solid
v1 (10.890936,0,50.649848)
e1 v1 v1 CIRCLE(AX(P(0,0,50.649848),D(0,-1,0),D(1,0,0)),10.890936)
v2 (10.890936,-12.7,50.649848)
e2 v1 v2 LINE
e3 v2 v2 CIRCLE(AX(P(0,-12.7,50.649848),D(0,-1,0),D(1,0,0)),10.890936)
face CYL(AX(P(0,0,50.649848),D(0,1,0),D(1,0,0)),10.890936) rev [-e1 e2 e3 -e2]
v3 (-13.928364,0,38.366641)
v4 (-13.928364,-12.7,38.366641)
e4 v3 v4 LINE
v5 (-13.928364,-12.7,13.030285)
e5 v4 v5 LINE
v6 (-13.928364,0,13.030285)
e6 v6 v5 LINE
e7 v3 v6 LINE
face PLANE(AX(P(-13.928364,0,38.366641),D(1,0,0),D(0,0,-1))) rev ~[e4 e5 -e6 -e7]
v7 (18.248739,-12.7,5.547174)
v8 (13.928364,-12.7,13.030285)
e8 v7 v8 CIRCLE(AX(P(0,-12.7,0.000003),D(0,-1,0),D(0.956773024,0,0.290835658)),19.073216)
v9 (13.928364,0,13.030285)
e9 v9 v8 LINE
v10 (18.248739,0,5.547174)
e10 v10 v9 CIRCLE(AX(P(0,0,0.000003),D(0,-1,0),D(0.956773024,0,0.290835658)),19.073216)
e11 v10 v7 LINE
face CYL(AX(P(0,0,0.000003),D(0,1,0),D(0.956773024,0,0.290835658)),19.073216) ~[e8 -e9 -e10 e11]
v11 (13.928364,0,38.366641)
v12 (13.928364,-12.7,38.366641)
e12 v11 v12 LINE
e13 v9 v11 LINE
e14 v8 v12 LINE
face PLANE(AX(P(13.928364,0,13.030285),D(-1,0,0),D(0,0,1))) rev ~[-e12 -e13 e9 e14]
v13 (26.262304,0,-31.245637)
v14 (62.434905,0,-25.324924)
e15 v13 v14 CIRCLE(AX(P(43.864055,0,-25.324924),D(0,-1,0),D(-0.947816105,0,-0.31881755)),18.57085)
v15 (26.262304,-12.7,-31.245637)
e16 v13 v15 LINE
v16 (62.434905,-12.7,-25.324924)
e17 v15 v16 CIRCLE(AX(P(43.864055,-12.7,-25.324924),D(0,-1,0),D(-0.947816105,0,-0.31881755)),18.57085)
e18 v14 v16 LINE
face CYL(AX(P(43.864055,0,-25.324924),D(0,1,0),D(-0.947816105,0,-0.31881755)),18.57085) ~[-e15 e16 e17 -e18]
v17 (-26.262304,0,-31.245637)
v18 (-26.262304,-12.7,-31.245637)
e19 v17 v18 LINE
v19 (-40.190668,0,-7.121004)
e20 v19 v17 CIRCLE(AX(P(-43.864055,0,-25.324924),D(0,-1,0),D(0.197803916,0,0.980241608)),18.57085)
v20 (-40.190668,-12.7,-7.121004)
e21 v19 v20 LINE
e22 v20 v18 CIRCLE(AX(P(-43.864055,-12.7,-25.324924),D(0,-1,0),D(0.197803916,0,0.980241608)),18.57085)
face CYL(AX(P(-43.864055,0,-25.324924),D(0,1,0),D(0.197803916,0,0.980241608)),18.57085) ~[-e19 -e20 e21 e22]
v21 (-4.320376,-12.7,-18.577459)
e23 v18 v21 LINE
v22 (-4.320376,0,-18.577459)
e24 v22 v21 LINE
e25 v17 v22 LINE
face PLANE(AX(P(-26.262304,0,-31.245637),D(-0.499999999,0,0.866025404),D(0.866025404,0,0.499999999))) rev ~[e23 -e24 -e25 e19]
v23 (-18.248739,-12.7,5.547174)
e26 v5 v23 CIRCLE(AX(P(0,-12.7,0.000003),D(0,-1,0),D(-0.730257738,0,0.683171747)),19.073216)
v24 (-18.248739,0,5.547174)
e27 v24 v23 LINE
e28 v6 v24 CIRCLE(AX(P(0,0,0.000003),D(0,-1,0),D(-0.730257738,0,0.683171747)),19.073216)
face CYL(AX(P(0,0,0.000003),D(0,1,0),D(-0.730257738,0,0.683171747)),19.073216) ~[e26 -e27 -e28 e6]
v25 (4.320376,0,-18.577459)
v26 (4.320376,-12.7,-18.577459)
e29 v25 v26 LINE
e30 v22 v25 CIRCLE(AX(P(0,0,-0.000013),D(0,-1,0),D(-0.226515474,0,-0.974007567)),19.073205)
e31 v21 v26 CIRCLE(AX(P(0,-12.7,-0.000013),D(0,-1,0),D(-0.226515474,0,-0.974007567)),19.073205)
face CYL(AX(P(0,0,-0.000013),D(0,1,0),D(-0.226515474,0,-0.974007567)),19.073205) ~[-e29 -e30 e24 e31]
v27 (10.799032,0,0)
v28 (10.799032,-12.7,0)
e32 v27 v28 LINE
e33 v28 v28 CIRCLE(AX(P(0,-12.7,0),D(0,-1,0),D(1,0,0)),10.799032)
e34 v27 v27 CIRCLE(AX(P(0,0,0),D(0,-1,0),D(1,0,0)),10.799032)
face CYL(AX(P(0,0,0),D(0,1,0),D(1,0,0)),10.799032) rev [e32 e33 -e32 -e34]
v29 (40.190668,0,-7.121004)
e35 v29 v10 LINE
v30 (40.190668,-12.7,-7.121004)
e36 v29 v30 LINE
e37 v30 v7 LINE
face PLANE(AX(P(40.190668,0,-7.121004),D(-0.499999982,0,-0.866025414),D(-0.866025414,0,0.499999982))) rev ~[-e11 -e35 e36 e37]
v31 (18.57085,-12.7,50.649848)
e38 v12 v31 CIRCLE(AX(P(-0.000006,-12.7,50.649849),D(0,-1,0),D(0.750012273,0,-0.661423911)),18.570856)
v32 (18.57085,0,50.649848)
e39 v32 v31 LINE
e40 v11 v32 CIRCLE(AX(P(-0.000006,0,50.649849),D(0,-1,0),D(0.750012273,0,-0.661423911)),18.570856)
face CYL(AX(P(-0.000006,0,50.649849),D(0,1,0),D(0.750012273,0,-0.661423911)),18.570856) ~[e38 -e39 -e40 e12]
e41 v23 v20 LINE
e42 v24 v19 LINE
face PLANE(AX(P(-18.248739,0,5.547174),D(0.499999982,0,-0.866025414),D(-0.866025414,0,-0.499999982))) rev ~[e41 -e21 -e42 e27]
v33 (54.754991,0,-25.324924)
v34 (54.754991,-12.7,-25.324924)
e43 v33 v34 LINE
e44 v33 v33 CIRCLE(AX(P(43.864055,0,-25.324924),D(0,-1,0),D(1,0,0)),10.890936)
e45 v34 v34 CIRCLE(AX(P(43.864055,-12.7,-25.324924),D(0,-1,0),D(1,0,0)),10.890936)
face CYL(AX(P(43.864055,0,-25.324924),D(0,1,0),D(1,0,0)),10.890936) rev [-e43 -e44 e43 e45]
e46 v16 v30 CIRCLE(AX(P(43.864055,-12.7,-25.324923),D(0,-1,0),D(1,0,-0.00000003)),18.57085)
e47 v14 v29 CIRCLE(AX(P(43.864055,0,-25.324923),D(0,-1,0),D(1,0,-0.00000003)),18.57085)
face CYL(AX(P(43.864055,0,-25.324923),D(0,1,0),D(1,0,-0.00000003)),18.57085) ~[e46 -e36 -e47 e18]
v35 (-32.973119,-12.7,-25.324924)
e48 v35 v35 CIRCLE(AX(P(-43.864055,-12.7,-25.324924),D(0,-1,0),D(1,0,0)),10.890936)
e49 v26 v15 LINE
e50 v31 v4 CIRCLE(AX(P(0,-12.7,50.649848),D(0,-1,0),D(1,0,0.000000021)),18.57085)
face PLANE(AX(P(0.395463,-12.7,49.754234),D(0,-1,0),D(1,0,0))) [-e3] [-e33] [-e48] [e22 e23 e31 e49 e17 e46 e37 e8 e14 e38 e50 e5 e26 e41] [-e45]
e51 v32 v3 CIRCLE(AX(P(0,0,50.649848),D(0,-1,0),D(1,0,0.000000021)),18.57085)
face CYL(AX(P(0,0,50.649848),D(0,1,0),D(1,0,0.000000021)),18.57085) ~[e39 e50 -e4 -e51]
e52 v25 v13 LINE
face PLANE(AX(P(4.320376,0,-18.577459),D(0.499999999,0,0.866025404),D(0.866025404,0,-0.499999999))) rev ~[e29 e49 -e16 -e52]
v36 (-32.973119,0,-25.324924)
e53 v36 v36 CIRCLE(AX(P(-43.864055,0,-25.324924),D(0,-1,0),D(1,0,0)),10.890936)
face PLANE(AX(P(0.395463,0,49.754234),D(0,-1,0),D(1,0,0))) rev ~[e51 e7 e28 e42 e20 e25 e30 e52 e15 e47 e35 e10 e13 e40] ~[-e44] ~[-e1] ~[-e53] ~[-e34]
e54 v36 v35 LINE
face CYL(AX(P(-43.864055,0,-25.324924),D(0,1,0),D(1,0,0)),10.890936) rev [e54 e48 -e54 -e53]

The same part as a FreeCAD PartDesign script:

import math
import FreeCAD as App
import Part
import Sketcher
Q = App.Units.Quantity

doc = App.newDocument("Part")
body = doc.addObject("PartDesign::Body", "Body")

sketch1 = body.newObject("Sketcher::SketchObject", "Sketch")
sketch1.AttachmentSupport = (doc.getObject("XZ_Plane"), [""])
sketch1.MapMode = "FlatFace"
sketch1.addGeometry([
    Part.ArcOfCircle(Part.Circle(App.Vector(0, 51, 0), App.Vector(0, 0, 1), 19), math.radians(-41), math.radians(0)),
    Part.ArcOfCircle(Part.Circle(App.Vector(0, 51, 0), App.Vector(0, 0, 1), 19), math.radians(0), math.radians(221)),
    Part.LineSegment(App.Vector(-14, 38, 0), App.Vector(-14, 13, 0)),
    Part.ArcOfCircle(Part.Circle(App.Vector(0, 0, 0), App.Vector(0, 0, 1), 19), math.radians(137), math.radians(163)),
    Part.LineSegment(App.Vector(-18, 6, 0), App.Vector(-40, -7, 0)),
    Part.ArcOfCircle(Part.Circle(App.Vector(-44, -25, 0), App.Vector(0, 0, 1), 19), math.radians(79), math.radians(341)),
    Part.LineSegment(App.Vector(-26, -31, 0), App.Vector(-4, -19, 0)),
    Part.ArcOfCircle(Part.Circle(App.Vector(0, 0, 0), App.Vector(0, 0, 1), 19), math.radians(-103), math.radians(-77)),
    Part.LineSegment(App.Vector(4, -19, 0), App.Vector(26, -31, 0)),
    Part.ArcOfCircle(Part.Circle(App.Vector(44, -25, 0), App.Vector(0, 0, 1), 19), math.radians(-161), math.radians(0)),
    Part.ArcOfCircle(Part.Circle(App.Vector(44, -25, 0), App.Vector(0, 0, 1), 19), math.radians(0), math.radians(101)),
    Part.LineSegment(App.Vector(40, -7, 0), App.Vector(18, 6, 0)),
    Part.ArcOfCircle(Part.Circle(App.Vector(0, 0, 0), App.Vector(0, 0, 1), 19), math.radians(17), math.radians(43)),
    Part.LineSegment(App.Vector(14, 13, 0), App.Vector(14, 38, 0)),
    Part.Circle(App.Vector(-44, -25, 0), App.Vector(0, 0, 1), 11),
    Part.Circle(App.Vector(44, -25, 0), App.Vector(0, 0, 1), 11),
    Part.Circle(App.Vector(0, 0, 0), App.Vector(0, 0, 1), 11),
    Part.Circle(App.Vector(0, 51, 0), App.Vector(0, 0, 1), 11),
], False)
sketch1.addConstraint([
    Sketcher.Constraint("Tangent", 0, 2, 1, 1),
    Sketcher.Constraint("Coincident", 1, 2, 2, 1),
    Sketcher.Constraint("Coincident", 2, 2, 3, 1),
    Sketcher.Constraint("Coincident", 3, 2, 4, 1),
    Sketcher.Constraint("Coincident", 4, 2, 5, 1),
    Sketcher.Constraint("Coincident", 5, 2, 6, 1),
    Sketcher.Constraint("Coincident", 6, 2, 7, 1),
    Sketcher.Constraint("Coincident", 7, 2, 8, 1),
    Sketcher.Constraint("Coincident", 8, 2, 9, 1),
    Sketcher.Constraint("Tangent", 9, 2, 10, 1),
    Sketcher.Constraint("Coincident", 10, 2, 11, 1),
    Sketcher.Constraint("Coincident", 11, 2, 12, 1),
    Sketcher.Constraint("Coincident", 12, 2, 13, 1),
    Sketcher.Constraint("Coincident", 13, 2, 0, 1),
    Sketcher.Constraint("Vertical", 2),
    Sketcher.Constraint("Vertical", 13),
    Sketcher.Constraint("Coincident", 3, 3, -1, 1),
    Sketcher.Constraint("Coincident", 12, 3, -1, 1),
    Sketcher.Constraint("Coincident", 16, 3, -1, 1),
    Sketcher.Constraint("Coincident", 14, 3, 5, 3),
    Sketcher.Constraint("Coincident", 15, 3, 9, 3),
    Sketcher.Constraint("Coincident", 17, 3, 0, 3),
    Sketcher.Constraint("Equal", 1, 5),
    Sketcher.Constraint("Equal", 5, 9),
    Sketcher.Constraint("Equal", 9, 10),
    Sketcher.Constraint("Equal", 3, 12),
    Sketcher.Constraint("Equal", 14, 15),
    Sketcher.Constraint("Equal", 15, 17),
    Sketcher.Constraint("Symmetric", 5, 3, 9, 3, -2),
    Sketcher.Constraint("Symmetric", 6, 2, 7, 2, -2),
    Sketcher.Constraint("Symmetric", 1, 2, 13, 2, -2),
    Sketcher.Constraint("PointOnObject", 1, 3, -2),
    Sketcher.Constraint("Parallel", 4, 6),
    Sketcher.Constraint("Parallel", 8, 11),
    Sketcher.Constraint("Horizontal", 17, 3, 0, 2),
    Sketcher.Constraint("Horizontal", 5, 2, 8, 2),
    Sketcher.Constraint("Horizontal", 15, 3, 9, 2),
    Sketcher.Constraint("Horizontal", 4, 2, 10, 2),
    Sketcher.Constraint("Equal", 4, 6),
    Sketcher.Constraint("Angle", 4, Q("-150.000001 deg")),
    Sketcher.Constraint("Diameter", 14, Q("21.781872 mm")),
    Sketcher.Constraint("Radius", 1, Q("18.57085 mm")),
    Sketcher.Constraint("Diameter", 16, Q("21.598064 mm")),
    Sketcher.Constraint("Radius", 3, Q("19.073216 mm")),
    Sketcher.Constraint("Radius", 7, Q("19.073205 mm")),
    Sketcher.Constraint("DistanceY", 7, 3, 2, 2, Q("13.030298 mm")),
    Sketcher.Constraint("DistanceX", 8, 2, 9, 2, Q("36.172601 mm")),
    Sketcher.Constraint("DistanceY", 2, 2, 2, 1, Q("25.336356 mm")),
    Sketcher.Constraint("DistanceY", -1, 1, 0, 3, Q("50.649849 mm")),
    Sketcher.Constraint("DistanceX", 4, 2, -1, 1, Q("40.190668 mm")),
    Sketcher.Constraint("DistanceY", 6, 2, -1, 1, Q("18.577459 mm")),
])
pad1 = body.newObject("PartDesign::Pad", "Pad")
pad1.Profile = sketch1
pad1.Length = Q("0.5 in")

doc.recompute()
